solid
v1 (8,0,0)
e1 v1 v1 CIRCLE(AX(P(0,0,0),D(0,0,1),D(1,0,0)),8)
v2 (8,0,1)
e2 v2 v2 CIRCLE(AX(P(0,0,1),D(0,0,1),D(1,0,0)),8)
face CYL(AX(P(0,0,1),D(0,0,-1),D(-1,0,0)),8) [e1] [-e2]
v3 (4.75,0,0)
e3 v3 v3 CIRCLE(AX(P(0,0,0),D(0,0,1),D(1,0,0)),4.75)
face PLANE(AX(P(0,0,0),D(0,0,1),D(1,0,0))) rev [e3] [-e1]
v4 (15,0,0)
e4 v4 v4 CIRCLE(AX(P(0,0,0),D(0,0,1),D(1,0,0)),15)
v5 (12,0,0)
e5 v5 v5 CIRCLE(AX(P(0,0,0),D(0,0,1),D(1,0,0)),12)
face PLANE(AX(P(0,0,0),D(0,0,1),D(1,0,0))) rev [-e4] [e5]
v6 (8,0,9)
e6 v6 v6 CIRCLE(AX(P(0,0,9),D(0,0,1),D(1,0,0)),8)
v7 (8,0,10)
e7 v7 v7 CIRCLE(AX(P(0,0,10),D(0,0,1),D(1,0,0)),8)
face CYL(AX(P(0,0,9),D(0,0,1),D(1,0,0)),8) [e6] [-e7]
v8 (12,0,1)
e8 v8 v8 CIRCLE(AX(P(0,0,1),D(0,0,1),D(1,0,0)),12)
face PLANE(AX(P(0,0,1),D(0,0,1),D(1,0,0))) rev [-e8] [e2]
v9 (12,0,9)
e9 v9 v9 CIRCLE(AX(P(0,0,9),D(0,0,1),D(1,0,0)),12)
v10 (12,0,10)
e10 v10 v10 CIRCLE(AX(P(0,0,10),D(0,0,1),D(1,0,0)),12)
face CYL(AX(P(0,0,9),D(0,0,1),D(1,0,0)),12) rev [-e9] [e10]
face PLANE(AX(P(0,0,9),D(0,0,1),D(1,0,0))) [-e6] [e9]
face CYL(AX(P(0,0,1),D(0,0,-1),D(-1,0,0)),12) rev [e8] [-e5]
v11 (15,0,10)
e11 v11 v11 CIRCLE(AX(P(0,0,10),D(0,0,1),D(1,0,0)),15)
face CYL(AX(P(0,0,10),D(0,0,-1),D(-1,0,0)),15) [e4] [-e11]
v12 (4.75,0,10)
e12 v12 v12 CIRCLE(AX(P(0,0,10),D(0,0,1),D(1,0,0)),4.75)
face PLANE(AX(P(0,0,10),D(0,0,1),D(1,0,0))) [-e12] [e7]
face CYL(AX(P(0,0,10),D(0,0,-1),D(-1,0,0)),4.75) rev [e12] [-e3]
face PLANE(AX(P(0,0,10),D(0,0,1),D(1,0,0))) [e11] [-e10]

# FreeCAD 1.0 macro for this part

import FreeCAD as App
import Part
import Sketcher

V = App.Vector
Q = App.Units.Quantity

doc = App.newDocument("Part")
body = doc.addObject("PartDesign::Body", "Body")

# Sketch on XY plane
sketch1 = body.newObject("Sketcher::SketchObject", "Sketch")
sketch1.AttachmentSupport = (doc.getObject("XY_Plane"), [""])
sketch1.MapMode = "FlatFace"
sketch1.addGeometry(Part.Circle(V(0, 0, 0), V(0, 0, 1), 15), False)
sketch1.addGeometry(Part.Circle(V(0, 0, 0), V(0, 0, 1), 4.8), False)
sketch1.addConstraint(Sketcher.Constraint("Coincident", 0, 3, -1, 1))
sketch1.addConstraint(Sketcher.Constraint("Coincident", 1, 3, -1, 1))
sketch1.addConstraint(Sketcher.Constraint("Diameter", 0, Q("30 mm")))
sketch1.addConstraint(Sketcher.Constraint("Diameter", 1, Q("9.5 mm")))
pad1 = body.newObject("PartDesign::Pad", "Pad")
pad1.Profile = sketch1
pad1.Length = 10

# Sketch on XY plane
sketch2 = body.newObject("Sketcher::SketchObject", "Sketch001")
sketch2.AttachmentSupport = (doc.getObject("XY_Plane"), [""])
sketch2.MapMode = "FlatFace"
sketch2.addGeometry(Part.Circle(V(0, 0, 0), V(0, 0, 1), 12), False)
sketch2.addGeometry(Part.Circle(V(0, 0, 0), V(0, 0, 1), 8), False)
sketch2.addConstraint(Sketcher.Constraint("Coincident", 0, 3, -1, 1))
sketch2.addConstraint(Sketcher.Constraint("Coincident", 1, 3, -1, 1))
sketch2.addConstraint(Sketcher.Constraint("Diameter", 0, Q("24 mm")))
sketch2.addConstraint(Sketcher.Constraint("Diameter", 1, Q("16 mm")))
pocket1 = body.newObject("PartDesign::Pocket", "Pocket")
pocket1.Profile = sketch2
pocket1.Length = 1
pocket1.Reversed = True

# Sketch on XY plane
sketch3 = body.newObject("Sketcher::SketchObject", "Sketch002")
sketch3.AttachmentSupport = (doc.getObject("XY_Plane"), [""])
sketch3.MapMode = "FlatFace"
sketch3.AttachmentOffset = App.Placement(V(0, 0, 10), App.Rotation())
sketch3.addGeometry(Part.Circle(V(0, 0, 0), V(0, 0, 1), 12), False)
sketch3.addGeometry(Part.Circle(V(0, 0, 0), V(0, 0, 1), 8), False)
sketch3.addConstraint(Sketcher.Constraint("Coincident", 0, 3, -1, 1))
sketch3.addConstraint(Sketcher.Constraint("Coincident", 1, 3, -1, 1))
sketch3.addConstraint(Sketcher.Constraint("Diameter", 0, Q("24 mm")))
sketch3.addConstraint(Sketcher.Constraint("Diameter", 1, Q("16 mm")))
pocket2 = body.newObject("PartDesign::Pocket", "Pocket001")
pocket2.Profile = sketch3
pocket2.Length = 1

doc.recompute()
